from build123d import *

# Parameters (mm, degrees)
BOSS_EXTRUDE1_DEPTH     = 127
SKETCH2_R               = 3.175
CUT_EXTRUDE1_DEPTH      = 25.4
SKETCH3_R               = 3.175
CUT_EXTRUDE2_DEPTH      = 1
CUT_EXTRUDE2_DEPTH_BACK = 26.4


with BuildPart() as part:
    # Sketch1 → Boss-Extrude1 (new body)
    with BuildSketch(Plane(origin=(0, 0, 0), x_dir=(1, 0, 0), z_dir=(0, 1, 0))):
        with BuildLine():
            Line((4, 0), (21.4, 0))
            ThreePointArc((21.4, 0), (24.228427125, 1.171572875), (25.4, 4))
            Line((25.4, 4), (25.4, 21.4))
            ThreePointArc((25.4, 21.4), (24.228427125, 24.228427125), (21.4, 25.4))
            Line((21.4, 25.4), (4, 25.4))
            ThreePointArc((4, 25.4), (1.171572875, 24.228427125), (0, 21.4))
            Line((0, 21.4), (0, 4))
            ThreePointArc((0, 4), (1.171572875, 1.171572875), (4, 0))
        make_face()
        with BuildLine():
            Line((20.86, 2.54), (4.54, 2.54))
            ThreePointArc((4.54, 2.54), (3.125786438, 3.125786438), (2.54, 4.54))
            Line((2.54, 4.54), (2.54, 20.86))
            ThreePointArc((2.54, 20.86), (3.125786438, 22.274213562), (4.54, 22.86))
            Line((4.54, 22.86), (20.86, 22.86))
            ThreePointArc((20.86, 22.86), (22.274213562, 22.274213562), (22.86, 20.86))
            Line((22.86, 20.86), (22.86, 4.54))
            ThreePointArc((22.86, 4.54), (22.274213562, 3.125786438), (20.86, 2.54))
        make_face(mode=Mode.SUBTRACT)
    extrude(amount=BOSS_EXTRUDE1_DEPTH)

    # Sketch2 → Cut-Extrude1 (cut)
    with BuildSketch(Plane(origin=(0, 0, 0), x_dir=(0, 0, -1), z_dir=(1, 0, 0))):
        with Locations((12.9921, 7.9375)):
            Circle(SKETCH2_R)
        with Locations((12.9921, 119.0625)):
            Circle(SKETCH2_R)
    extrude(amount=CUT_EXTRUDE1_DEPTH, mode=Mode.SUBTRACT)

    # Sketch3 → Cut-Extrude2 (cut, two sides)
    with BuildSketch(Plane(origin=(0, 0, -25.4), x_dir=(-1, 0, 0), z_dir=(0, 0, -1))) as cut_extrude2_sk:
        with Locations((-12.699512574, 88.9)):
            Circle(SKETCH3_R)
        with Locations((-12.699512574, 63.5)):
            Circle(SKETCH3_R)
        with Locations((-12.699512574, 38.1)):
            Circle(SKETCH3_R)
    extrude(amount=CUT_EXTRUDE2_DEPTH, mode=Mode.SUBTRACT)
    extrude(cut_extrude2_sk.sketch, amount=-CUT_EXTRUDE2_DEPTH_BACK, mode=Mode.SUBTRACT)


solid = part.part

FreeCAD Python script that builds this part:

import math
import FreeCAD as App
import Part
import Sketcher

V = App.Vector
Q = App.Units.Quantity

doc = App.newDocument("Part")
body = doc.addObject("PartDesign::Body", "Body")

sketch1 = body.newObject("Sketcher::SketchObject", "Sketch")
sketch1.AttachmentSupport = (doc.getObject("XZ_Plane"), [""])
sketch1.MapMode = "FlatFace"
sketch1.addGeometry([
    Part.LineSegment(V(4, 0, 0), V(21.4, 0, 0)),
    Part.ArcOfCircle(Part.Circle(V(21.4, -4, 0), V(0, 0, 1), 4), math.radians(0), math.radians(90)),
    Part.LineSegment(V(25.4, -4, 0), V(25.4, -21.4, 0)),
    Part.ArcOfCircle(Part.Circle(V(21.4, -21.4, 0), V(0, 0, 1), 4), math.radians(-90), math.radians(0)),
    Part.LineSegment(V(21.4, -25.4, 0), V(4, -25.4, 0)),
    Part.ArcOfCircle(Part.Circle(V(4, -21.4, 0), V(0, 0, 1), 4), math.radians(180), math.radians(270)),
    Part.LineSegment(V(0, -21.4, 0), V(0, -4, 0)),
    Part.ArcOfCircle(Part.Circle(V(4, -4, 0), V(0, 0, 1), 4), math.radians(90), math.radians(180)),
    Part.ArcOfCircle(Part.Circle(V(20.9, -4.5, 0), V(0, 0, 1), 2), math.radians(0), math.radians(90)),
    Part.LineSegment(V(20.9, -2.5, 0), V(4.5, -2.5, 0)),
    Part.ArcOfCircle(Part.Circle(V(4.5, -4.5, 0), V(0, 0, 1), 2), math.radians(90), math.radians(180)),
    Part.LineSegment(V(2.5, -4.5, 0), V(2.5, -20.9, 0)),
    Part.ArcOfCircle(Part.Circle(V(4.5, -20.9, 0), V(0, 0, 1), 2), math.radians(-180), math.radians(-90)),
    Part.LineSegment(V(4.5, -22.9, 0), V(20.9, -22.9, 0)),
    Part.ArcOfCircle(Part.Circle(V(20.9, -20.9, 0), V(0, 0, 1), 2), math.radians(-90), math.radians(0)),
    Part.LineSegment(V(22.9, -20.9, 0), V(22.9, -4.5, 0)),
], False)
sketch1.addConstraint([
    Sketcher.Constraint("Tangent", 0, 2, 1, 2),
    Sketcher.Constraint("Tangent", 1, 1, 2, 1),
    Sketcher.Constraint("Tangent", 2, 2, 3, 2),
    Sketcher.Constraint("Tangent", 3, 1, 4, 1),
    Sketcher.Constraint("Tangent", 4, 2, 5, 2),
    Sketcher.Constraint("Tangent", 5, 1, 6, 1),
    Sketcher.Constraint("Tangent", 6, 2, 7, 2),
    Sketcher.Constraint("Tangent", 7, 1, 0, 1),
    Sketcher.Constraint("Tangent", 8, 2, 9, 1),
    Sketcher.Constraint("Tangent", 9, 2, 10, 1),
    Sketcher.Constraint("Tangent", 10, 2, 11, 1),
    Sketcher.Constraint("Tangent", 11, 2, 12, 1),
    Sketcher.Constraint("Tangent", 12, 2, 13, 1),
    Sketcher.Constraint("Tangent", 13, 2, 14, 1),
    Sketcher.Constraint("Tangent", 14, 2, 15, 1),
    Sketcher.Constraint("Tangent", 15, 2, 8, 1),
    Sketcher.Constraint("Horizontal", 0),
    Sketcher.Constraint("Vertical", 2),
    Sketcher.Constraint("Horizontal", 4),
    Sketcher.Constraint("Vertical", 6),
    Sketcher.Constraint("Horizontal", 9),
    Sketcher.Constraint("Vertical", 11),
    Sketcher.Constraint("Horizontal", 13),
    Sketcher.Constraint("Vertical", 15),
    Sketcher.Constraint("Equal", 1, 3),
    Sketcher.Constraint("Equal", 3, 5),
    Sketcher.Constraint("Equal", 5, 7),
    Sketcher.Constraint("Equal", 8, 10),
    Sketcher.Constraint("Equal", 10, 12),
    Sketcher.Constraint("Equal", 12, 14),
    Sketcher.Constraint("PointOnObject", 0, 2, -1),
    Sketcher.Constraint("PointOnObject", 5, 1, -2),
    Sketcher.Constraint("Equal", 4, 2),
    Sketcher.Constraint("Equal", 13, 11),
    Sketcher.Constraint("Radius", 1, Q("4 mm")),
    Sketcher.Constraint("Radius", 8, Q("2 mm")),
    Sketcher.Constraint("DistanceX", 0, 1, 0, 2, Q("17.4 mm")),
    Sketcher.Constraint("DistanceX", 9, 2, 9, 1, Q("16.32 mm")),
    Sketcher.Constraint("DistanceX", -1, 1, 8, 3, Q("20.86 mm")),
    Sketcher.Constraint("DistanceY", 8, 3, -1, 1, Q("4.54 mm")),
])
pad1 = body.newObject("PartDesign::Pad", "Pad")
pad1.Profile = sketch1
pad1.Length = 127
pad1.Reversed = True

sketch2 = body.newObject("Sketcher::SketchObject", "Sketch001")
sketch2.AttachmentSupport = (doc.getObject("YZ_Plane"), [""])
sketch2.MapMode = "FlatFace"
sketch2.addGeometry([
    Part.Circle(V(7.9, -13, 0), V(0, 0, 1), 3.2),
    Part.Circle(V(119.1, -13, 0), V(0, 0, 1), 3.2),
], False)
sketch2.addConstraint([
    Sketcher.Constraint("Equal", 0, 1),
    Sketcher.Constraint("Horizontal", 0, 3, 1, 3),
    Sketcher.Constraint("Diameter", 0, Q("6.35 mm")),
    Sketcher.Constraint("DistanceX", 0, 3, 1, 3, Q("111.125 mm")),
    Sketcher.Constraint("DistanceX", -1, 1, 0, 3, Q("7.9375 mm")),
    Sketcher.Constraint("DistanceY", 0, 3, -1, 1, Q("12.9921 mm")),
])
pocket1 = body.newObject("PartDesign::Pocket", "Pocket")
pocket1.Profile = sketch2
pocket1.Length = 25.4
pocket1.Reversed = True

sketch3 = body.newObject("Sketcher::SketchObject", "Sketch002")
sketch3.AttachmentSupport = (doc.getObject("XY_Plane"), [""])
sketch3.MapMode = "FlatFace"
sketch3.AttachmentOffset = App.Placement(V(0, 0, -25.4), App.Rotation())
sketch3.addGeometry([
    Part.Circle(V(12.7, 88.9, 0), V(0, 0, 1), 3.2),
    Part.Circle(V(12.7, 63.5, 0), V(0, 0, 1), 3.2),
    Part.Circle(V(12.7, 38.1, 0), V(0, 0, 1), 3.2),
], False)
sketch3.addConstraint([
    Sketcher.Constraint("Equal", 0, 1),
    Sketcher.Constraint("Equal", 1, 2),
    Sketcher.Constraint("Vertical", 0, 3, 1, 3),
    Sketcher.Constraint("Vertical", 1, 3, 2, 3),
    Sketcher.Constraint("Diameter", 0, Q("6.35 mm")),
    Sketcher.Constraint("DistanceY", -1, 1, 0, 3, Q("88.9 mm")),
    Sketcher.Constraint("DistanceY", -1, 1, 1, 3, Q("63.5 mm")),
    Sketcher.Constraint("DistanceY", -1, 1, 2, 3, Q("38.1 mm")),
    Sketcher.Constraint("DistanceX", -1, 1, 0, 3, Q("12.699513 mm")),
])
pocket2 = body.newObject("PartDesign::Pocket", "Pocket001")
pocket2.Profile = sketch3
pocket2.Type = "ThroughAll"
pocket2.Midplane = True

doc.recompute()
